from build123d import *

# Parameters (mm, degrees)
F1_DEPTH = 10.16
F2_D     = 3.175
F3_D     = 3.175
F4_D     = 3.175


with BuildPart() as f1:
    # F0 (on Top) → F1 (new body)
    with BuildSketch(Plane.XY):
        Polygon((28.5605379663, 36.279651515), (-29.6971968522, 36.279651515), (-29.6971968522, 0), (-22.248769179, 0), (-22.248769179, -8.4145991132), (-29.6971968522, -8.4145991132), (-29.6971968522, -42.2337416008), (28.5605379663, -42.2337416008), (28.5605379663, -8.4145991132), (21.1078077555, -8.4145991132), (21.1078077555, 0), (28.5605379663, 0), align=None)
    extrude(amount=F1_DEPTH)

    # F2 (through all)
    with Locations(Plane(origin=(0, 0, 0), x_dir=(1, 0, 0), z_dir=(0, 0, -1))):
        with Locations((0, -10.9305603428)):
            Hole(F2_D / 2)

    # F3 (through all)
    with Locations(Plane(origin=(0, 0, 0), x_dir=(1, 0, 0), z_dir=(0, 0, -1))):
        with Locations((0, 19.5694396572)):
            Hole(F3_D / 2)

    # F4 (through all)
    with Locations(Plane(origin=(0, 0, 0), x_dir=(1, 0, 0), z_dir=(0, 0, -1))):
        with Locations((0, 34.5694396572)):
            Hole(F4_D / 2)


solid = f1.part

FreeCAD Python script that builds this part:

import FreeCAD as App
import Part
import Sketcher
from FreeCAD import Vector
Q = App.Units.Quantity

doc = App.newDocument("Part")
params = doc.addObject("Spreadsheet::Sheet", "Params")
for row, (alias, value) in enumerate([
    ("pad1_length", "0.4 in"),
    ("sketch2_diameter", "0.125 in"),
    ("hole_diameter", "0.125 in"),
    ("sketch3_diameter", "0.125 in"),
    ("hole2_diameter", "0.125 in"),
    ("sketch4_diameter", "0.125 in"),
    ("hole3_diameter", "0.125 in"),
], start=1):
    params.set(f"A{row}", alias)
    params.set(f"B{row}", "=" + value)
    params.setAlias(f"B{row}", alias)

body = doc.addObject("PartDesign::Body", "Body")

sketch1 = doc.addObject("Sketcher::SketchObject", "Sketch")
body.addObject(sketch1)
sketch1.AttachmentSupport = (doc.XY_Plane, [""])
sketch1.MapMode = "FlatFace"
sketch1.addGeometry([
    Part.LineSegment(Vector(28.560538, 36.279652, 0), Vector(-29.697197, 36.279652, 0)),
    Part.LineSegment(Vector(-29.697197, 36.279652, 0), Vector(-29.697197, 0, 0)),
    Part.LineSegment(Vector(-29.697197, 0, 0), Vector(-22.248769, 0, 0)),
    Part.LineSegment(Vector(-22.248769, 0, 0), Vector(-22.248769, -8.414599, 0)),
    Part.LineSegment(Vector(-22.248769, -8.414599, 0), Vector(-29.697197, -8.414599, 0)),
    Part.LineSegment(Vector(-29.697197, -8.414599, 0), Vector(-29.697197, -42.233742, 0)),
    Part.LineSegment(Vector(-29.697197, -42.233742, 0), Vector(28.560538, -42.233742, 0)),
    Part.LineSegment(Vector(28.560538, -42.233742, 0), Vector(28.560538, -8.414599, 0)),
    Part.LineSegment(Vector(28.560538, -8.414599, 0), Vector(21.107808, -8.414599, 0)),
    Part.LineSegment(Vector(21.107808, -8.414599, 0), Vector(21.107808, 0, 0)),
    Part.LineSegment(Vector(21.107808, 0, 0), Vector(28.560538, 0, 0)),
    Part.LineSegment(Vector(28.560538, 0, 0), Vector(28.560538, 36.279652, 0)),
], False)
sketch1.addConstraint([
    Sketcher.Constraint("Coincident", 0, 2, 1, 1),
    Sketcher.Constraint("Coincident", 1, 2, 2, 1),
    Sketcher.Constraint("Coincident", 2, 2, 3, 1),
    Sketcher.Constraint("Coincident", 3, 2, 4, 1),
    Sketcher.Constraint("Coincident", 4, 2, 5, 1),
    Sketcher.Constraint("Coincident", 5, 2, 6, 1),
    Sketcher.Constraint("Coincident", 6, 2, 7, 1),
    Sketcher.Constraint("Coincident", 7, 2, 8, 1),
    Sketcher.Constraint("Coincident", 8, 2, 9, 1),
    Sketcher.Constraint("Coincident", 9, 2, 10, 1),
    Sketcher.Constraint("Coincident", 10, 2, 11, 1),
    Sketcher.Constraint("Coincident", 11, 2, 0, 1),
    Sketcher.Constraint("Horizontal", 0),
    Sketcher.Constraint("Vertical", 1),
    Sketcher.Constraint("Horizontal", 2),
    Sketcher.Constraint("Vertical", 3),
    Sketcher.Constraint("Horizontal", 4),
    Sketcher.Constraint("Vertical", 5),
    Sketcher.Constraint("Horizontal", 6),
    Sketcher.Constraint("Vertical", 7),
    Sketcher.Constraint("Horizontal", 8),
    Sketcher.Constraint("Vertical", 9),
    Sketcher.Constraint("Horizontal", 10),
    Sketcher.Constraint("Vertical", 11),
    Sketcher.Constraint("PointOnObject", 1, 2, -1),
    Sketcher.Constraint("PointOnObject", 9, 2, -1),
    Sketcher.Constraint("Horizontal", 4, 2, 7, 2),
    Sketcher.Constraint("Vertical", 1, 2, 4, 2),
    Sketcher.Constraint("Vertical", 7, 2, 10, 2),
    Sketcher.Constraint("DistanceY", 3, 2, 3, 1, 8.414599),
    Sketcher.Constraint("DistanceX", 8, 2, 8, 1, 7.45273),
    Sketcher.Constraint("DistanceY", 1, 2, 1, 1, 36.279652),
    Sketcher.Constraint("DistanceX", 0, 2, 0, 1, 58.257735),
    Sketcher.Constraint("DistanceX", 2, 1, 2, 2, 7.448428),
    Sketcher.Constraint("DistanceY", 5, 2, 5, 1, 33.819142),
    Sketcher.Constraint("DistanceX", 2, 2, -1, 1, 22.248769),
])
pad1 = doc.addObject("PartDesign::Pad", "Pad")
body.addObject(pad1)
pad1.Profile = sketch1
pad1.setExpression("Length", "Params.pad1_length")

sketch2 = doc.addObject("Sketcher::SketchObject", "Sketch001")
body.addObject(sketch2)
sketch2.AttachmentSupport = (doc.XY_Plane, [""])
sketch2.MapMode = "FlatFace"
sketch2.addGeometry(Part.Circle(Vector(0, 10.93056, 0), Vector(0, 0, 1), 1.5875), False)
sketch2.addConstraint([
    Sketcher.Constraint("PointOnObject", 0, 3, -2),
    Sketcher.Constraint("Diameter", 0, Q("0.125 in")),
    Sketcher.Constraint("DistanceY", -1, 1, 0, 3, 10.93056),
])
sketch2.setExpression("Constraints[1]", "Params.sketch2_diameter")
doc.recompute()
hole = doc.addObject("PartDesign::Hole", "Hole")
body.addObject(hole)
hole.Profile = sketch2
hole.ThreadType = "None"
hole.setExpression("Diameter", "Params.hole_diameter")
hole.DepthType = "ThroughAll"
hole.Reversed = True

sketch3 = doc.addObject("Sketcher::SketchObject", "Sketch002")
body.addObject(sketch3)
sketch3.AttachmentSupport = (doc.XY_Plane, [""])
sketch3.MapMode = "FlatFace"
sketch3.addGeometry(Part.Circle(Vector(0, -19.56944, 0), Vector(0, 0, 1), 1.5875), False)
sketch3.addConstraint([
    Sketcher.Constraint("PointOnObject", 0, 3, -2),
    Sketcher.Constraint("Diameter", 0, Q("0.125 in")),
    Sketcher.Constraint("DistanceY", 0, 3, -1, 1, 19.56944),
])
sketch3.setExpression("Constraints[1]", "Params.sketch3_diameter")
doc.recompute()
hole2 = doc.addObject("PartDesign::Hole", "Hole001")
body.addObject(hole2)
hole2.Profile = sketch3
hole2.ThreadType = "None"
hole2.setExpression("Diameter", "Params.hole2_diameter")
hole2.DepthType = "ThroughAll"
hole2.Reversed = True

sketch4 = doc.addObject("Sketcher::SketchObject", "Sketch003")
body.addObject(sketch4)
sketch4.AttachmentSupport = (doc.XY_Plane, [""])
sketch4.MapMode = "FlatFace"
sketch4.addGeometry(Part.Circle(Vector(0, -34.56944, 0), Vector(0, 0, 1), 1.5875), False)
sketch4.addConstraint([
    Sketcher.Constraint("PointOnObject", 0, 3, -2),
    Sketcher.Constraint("Diameter", 0, Q("0.125 in")),
    Sketcher.Constraint("DistanceY", 0, 3, -1, 1, 34.56944),
])
sketch4.setExpression("Constraints[1]", "Params.sketch4_diameter")
doc.recompute()
hole3 = doc.addObject("PartDesign::Hole", "Hole002")
body.addObject(hole3)
hole3.Profile = sketch4
hole3.ThreadType = "None"
hole3.setExpression("Diameter", "Params.hole3_diameter")
hole3.DepthType = "ThroughAll"
hole3.Reversed = True

doc.recompute()
